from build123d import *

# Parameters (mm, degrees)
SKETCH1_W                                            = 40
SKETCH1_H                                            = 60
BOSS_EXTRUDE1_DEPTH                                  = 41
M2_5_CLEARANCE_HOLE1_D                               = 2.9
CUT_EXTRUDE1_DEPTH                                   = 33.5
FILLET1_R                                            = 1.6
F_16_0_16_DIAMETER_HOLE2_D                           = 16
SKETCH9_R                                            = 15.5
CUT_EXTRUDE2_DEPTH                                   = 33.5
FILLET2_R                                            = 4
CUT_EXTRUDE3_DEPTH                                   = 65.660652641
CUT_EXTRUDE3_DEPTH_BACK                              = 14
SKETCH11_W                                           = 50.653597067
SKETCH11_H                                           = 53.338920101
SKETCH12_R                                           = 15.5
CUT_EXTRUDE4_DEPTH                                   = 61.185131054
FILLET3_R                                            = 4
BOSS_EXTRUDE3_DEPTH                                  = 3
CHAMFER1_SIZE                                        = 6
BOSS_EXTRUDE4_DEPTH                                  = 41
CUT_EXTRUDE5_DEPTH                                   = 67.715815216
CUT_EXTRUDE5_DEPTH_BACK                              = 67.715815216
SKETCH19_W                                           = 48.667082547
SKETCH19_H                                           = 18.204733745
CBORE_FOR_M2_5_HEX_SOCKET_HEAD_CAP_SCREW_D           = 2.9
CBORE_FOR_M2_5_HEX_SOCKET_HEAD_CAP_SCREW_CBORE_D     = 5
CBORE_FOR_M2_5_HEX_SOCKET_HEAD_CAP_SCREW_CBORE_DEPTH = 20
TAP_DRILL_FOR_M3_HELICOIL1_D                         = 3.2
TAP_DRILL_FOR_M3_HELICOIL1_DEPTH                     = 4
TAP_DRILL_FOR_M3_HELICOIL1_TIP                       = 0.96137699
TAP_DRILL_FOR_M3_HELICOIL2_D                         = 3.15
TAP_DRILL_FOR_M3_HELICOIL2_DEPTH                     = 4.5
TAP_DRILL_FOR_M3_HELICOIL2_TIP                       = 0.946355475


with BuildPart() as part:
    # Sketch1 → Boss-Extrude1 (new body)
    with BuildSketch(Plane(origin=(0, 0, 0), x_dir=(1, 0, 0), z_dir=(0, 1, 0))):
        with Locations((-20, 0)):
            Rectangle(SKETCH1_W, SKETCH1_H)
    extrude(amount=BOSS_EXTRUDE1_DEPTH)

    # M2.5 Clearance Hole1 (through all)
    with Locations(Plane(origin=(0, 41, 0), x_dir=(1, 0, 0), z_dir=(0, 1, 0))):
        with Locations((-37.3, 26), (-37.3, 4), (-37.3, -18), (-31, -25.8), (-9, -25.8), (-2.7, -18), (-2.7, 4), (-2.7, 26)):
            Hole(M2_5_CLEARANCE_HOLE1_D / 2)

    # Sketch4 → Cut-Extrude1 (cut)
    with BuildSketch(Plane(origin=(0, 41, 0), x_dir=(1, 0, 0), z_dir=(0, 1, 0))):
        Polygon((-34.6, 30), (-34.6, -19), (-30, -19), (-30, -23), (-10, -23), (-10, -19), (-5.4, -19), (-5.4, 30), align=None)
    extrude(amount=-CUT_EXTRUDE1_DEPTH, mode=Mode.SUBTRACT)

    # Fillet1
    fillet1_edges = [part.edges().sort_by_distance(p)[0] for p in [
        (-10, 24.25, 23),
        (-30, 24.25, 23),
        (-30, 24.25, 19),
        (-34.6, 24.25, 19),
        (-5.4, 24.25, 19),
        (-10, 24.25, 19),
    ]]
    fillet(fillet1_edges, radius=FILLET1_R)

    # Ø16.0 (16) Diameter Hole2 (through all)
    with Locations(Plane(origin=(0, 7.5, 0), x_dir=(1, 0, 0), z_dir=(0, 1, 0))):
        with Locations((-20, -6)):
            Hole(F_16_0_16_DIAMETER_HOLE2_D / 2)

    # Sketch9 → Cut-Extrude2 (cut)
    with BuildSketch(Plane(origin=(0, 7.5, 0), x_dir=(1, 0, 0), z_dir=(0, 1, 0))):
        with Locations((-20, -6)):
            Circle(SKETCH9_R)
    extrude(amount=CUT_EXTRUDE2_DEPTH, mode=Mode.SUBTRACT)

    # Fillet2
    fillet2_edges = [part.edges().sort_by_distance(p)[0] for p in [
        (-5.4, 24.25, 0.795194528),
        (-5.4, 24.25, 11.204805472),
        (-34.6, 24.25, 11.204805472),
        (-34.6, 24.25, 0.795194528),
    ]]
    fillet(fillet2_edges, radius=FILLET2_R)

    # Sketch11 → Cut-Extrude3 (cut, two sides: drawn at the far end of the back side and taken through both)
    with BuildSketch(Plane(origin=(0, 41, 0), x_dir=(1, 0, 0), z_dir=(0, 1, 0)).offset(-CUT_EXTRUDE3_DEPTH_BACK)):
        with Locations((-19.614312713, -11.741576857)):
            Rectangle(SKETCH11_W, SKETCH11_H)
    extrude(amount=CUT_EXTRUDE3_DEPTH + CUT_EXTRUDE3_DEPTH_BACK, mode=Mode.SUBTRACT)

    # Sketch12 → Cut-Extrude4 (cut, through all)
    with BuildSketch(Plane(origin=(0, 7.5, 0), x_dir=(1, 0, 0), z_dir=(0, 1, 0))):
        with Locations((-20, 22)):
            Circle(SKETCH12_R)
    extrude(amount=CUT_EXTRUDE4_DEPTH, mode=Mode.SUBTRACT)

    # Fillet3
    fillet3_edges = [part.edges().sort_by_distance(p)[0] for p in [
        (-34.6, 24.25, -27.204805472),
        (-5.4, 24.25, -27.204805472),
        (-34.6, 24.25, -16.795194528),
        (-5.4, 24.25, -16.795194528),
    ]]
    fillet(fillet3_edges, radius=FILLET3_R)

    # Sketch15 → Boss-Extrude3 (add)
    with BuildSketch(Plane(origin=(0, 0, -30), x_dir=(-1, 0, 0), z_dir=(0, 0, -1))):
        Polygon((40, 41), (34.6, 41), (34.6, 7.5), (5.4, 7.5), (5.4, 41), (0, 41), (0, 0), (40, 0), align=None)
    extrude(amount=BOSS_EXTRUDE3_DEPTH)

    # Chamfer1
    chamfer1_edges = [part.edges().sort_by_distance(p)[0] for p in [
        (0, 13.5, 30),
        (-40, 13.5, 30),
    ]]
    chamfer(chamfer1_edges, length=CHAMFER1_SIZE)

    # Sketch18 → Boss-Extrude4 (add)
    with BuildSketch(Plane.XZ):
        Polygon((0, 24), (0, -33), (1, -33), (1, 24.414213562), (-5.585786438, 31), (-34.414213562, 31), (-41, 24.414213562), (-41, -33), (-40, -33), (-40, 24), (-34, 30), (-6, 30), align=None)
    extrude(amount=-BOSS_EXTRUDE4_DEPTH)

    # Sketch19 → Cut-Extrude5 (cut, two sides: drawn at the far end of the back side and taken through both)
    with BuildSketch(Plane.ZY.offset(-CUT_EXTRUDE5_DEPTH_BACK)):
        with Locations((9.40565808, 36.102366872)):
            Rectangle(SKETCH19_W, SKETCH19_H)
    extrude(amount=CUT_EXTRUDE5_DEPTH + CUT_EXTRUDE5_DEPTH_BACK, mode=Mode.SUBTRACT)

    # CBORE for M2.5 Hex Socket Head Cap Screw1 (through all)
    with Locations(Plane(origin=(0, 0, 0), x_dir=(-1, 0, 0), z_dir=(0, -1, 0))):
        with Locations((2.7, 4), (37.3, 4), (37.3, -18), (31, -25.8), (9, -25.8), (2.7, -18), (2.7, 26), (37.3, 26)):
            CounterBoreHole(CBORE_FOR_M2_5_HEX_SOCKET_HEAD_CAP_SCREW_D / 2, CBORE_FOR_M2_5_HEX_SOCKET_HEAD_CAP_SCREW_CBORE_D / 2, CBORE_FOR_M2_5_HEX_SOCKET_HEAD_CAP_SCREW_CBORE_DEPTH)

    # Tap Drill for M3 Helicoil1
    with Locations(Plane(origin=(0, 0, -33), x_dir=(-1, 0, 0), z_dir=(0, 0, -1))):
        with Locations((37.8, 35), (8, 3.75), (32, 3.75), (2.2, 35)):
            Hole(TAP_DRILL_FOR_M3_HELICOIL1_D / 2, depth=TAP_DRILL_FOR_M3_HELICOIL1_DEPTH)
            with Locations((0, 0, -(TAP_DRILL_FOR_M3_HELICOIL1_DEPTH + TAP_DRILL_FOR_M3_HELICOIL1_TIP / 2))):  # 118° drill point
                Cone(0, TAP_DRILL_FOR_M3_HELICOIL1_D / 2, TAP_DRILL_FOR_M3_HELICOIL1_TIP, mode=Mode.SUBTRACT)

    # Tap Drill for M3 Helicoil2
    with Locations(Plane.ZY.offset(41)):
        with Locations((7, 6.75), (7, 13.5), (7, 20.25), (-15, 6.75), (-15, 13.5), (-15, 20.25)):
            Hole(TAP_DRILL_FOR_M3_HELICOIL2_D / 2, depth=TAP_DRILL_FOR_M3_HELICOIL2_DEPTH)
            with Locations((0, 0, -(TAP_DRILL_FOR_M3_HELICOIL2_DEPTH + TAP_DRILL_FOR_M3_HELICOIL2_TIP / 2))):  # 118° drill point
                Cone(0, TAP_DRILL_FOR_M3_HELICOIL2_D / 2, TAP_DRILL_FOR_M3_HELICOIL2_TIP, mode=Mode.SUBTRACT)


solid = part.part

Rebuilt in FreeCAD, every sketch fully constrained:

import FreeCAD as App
import Part
import Sketcher
Q = App.Units.Quantity


def edges_at(feature, points):
    """Names of the edges that pass closest to the given points."""
    edges = feature.Shape.Edges
    near = lambda p: min(range(len(edges)), key=lambda i: edges[i].distToShape(Part.Vertex(*p))[0])
    return sorted({f"Edge{near(p) + 1}" for p in points})


def add_polygon(sketch, points):
    """Adds a closed chain of lines whose ends are joined by coincident constraints."""
    first, n = sketch.GeometryCount, len(points)
    for a, b in zip(points, points[1:] + points[:1]):
        sketch.addGeometry(Part.LineSegment(App.Vector(*a, 0), App.Vector(*b, 0)), False)
    for i in range(n):
        sketch.addConstraint(Sketcher.Constraint("Coincident", first + i, 2, first + (i + 1) % n, 1))

doc = App.newDocument("Part")
body = doc.addObject("PartDesign::Body", "Body")

sketch1 = body.newObject("Sketcher::SketchObject", "Sketch")
sketch1.AttachmentSupport = (doc.getObject("XZ_Plane"), [""])
sketch1.MapMode = "FlatFace"
add_polygon(sketch1, [(-40, -30), (-40, 30), (0, 30), (0, -30)])
sketch1.addConstraint(Sketcher.Constraint("Vertical", 0))
sketch1.addConstraint(Sketcher.Constraint("Horizontal", 1))
sketch1.addConstraint(Sketcher.Constraint("Vertical", 2))
sketch1.addConstraint(Sketcher.Constraint("Horizontal", 3))
sketch1.addConstraint(Sketcher.Constraint("Symmetric", 1, 2, 2, 2, -1, 1))
sketch1.addConstraint(Sketcher.Constraint("DistanceX", 1, 1, 1, 2, Q("40 mm")))
sketch1.addConstraint(Sketcher.Constraint("DistanceY", 0, 1, 0, 2, Q("60 mm")))
pad1 = body.newObject("PartDesign::Pad", "Pad")
pad1.Profile = sketch1
pad1.Length = 41
pad1.Reversed = True

sketch2 = body.newObject("Sketcher::SketchObject", "Sketch001")
sketch2.AttachmentSupport = (doc.getObject("XZ_Plane"), [""])
sketch2.MapMode = "FlatFace"
sketch2.AttachmentOffset = App.Placement(App.Vector(0, 0, -41), App.Rotation())
sketch2.addGeometry(Part.Circle(App.Vector(-37.3, -26, 0), App.Vector(0, 0, 1), 1.4), False)
sketch2.addGeometry(Part.Circle(App.Vector(-37.3, -4, 0), App.Vector(0, 0, 1), 1.4), False)
sketch2.addGeometry(Part.Circle(App.Vector(-37.3, 18, 0), App.Vector(0, 0, 1), 1.4), False)
sketch2.addGeometry(Part.Circle(App.Vector(-31, 25.8, 0), App.Vector(0, 0, 1), 1.4), False)
sketch2.addGeometry(Part.Circle(App.Vector(-9, 25.8, 0), App.Vector(0, 0, 1), 1.4), False)
sketch2.addGeometry(Part.Circle(App.Vector(-2.7, 18, 0), App.Vector(0, 0, 1), 1.4), False)
sketch2.addGeometry(Part.Circle(App.Vector(-2.7, -4, 0), App.Vector(0, 0, 1), 1.4), False)
sketch2.addGeometry(Part.Circle(App.Vector(-2.7, -26, 0), App.Vector(0, 0, 1), 1.4), False)
sketch2.addConstraint(Sketcher.Constraint("Equal", 0, 1))
sketch2.addConstraint(Sketcher.Constraint("Equal", 1, 2))
sketch2.addConstraint(Sketcher.Constraint("Equal", 2, 3))
sketch2.addConstraint(Sketcher.Constraint("Equal", 3, 4))
sketch2.addConstraint(Sketcher.Constraint("Equal", 4, 5))
sketch2.addConstraint(Sketcher.Constraint("Equal", 5, 6))
sketch2.addConstraint(Sketcher.Constraint("Equal", 6, 7))
sketch2.addConstraint(Sketcher.Constraint("Horizontal", 3, 3, 4, 3))
sketch2.addConstraint(Sketcher.Constraint("Horizontal", 2, 3, 5, 3))
sketch2.addConstraint(Sketcher.Constraint("Horizontal", 1, 3, 6, 3))
sketch2.addConstraint(Sketcher.Constraint("Horizontal", 0, 3, 7, 3))
sketch2.addConstraint(Sketcher.Constraint("Vertical", 0, 3, 1, 3))
sketch2.addConstraint(Sketcher.Constraint("Vertical", 1, 3, 2, 3))
sketch2.addConstraint(Sketcher.Constraint("Vertical", 5, 3, 6, 3))
sketch2.addConstraint(Sketcher.Constraint("Vertical", 6, 3, 7, 3))
sketch2.addConstraint(Sketcher.Constraint("Diameter", 0, Q("2.9 mm")))
sketch2.addConstraint(Sketcher.Constraint("DistanceY", 0, 3, -1, 1, Q("26 mm")))
sketch2.addConstraint(Sketcher.Constraint("DistanceY", 1, 3, -1, 1, Q("4 mm")))
sketch2.addConstraint(Sketcher.Constraint("DistanceY", -1, 1, 2, 3, Q("18 mm")))
sketch2.addConstraint(Sketcher.Constraint("DistanceX", 3, 3, -1, 1, Q("31 mm")))
sketch2.addConstraint(Sketcher.Constraint("DistanceX", 4, 3, -1, 1, Q("9 mm")))
sketch2.addConstraint(Sketcher.Constraint("DistanceX", 0, 3, -1, 1, Q("37.3 mm")))
sketch2.addConstraint(Sketcher.Constraint("DistanceY", -1, 1, 3, 3, Q("25.8 mm")))
sketch2.addConstraint(Sketcher.Constraint("DistanceX", 5, 3, -1, 1, Q("2.7 mm")))
doc.recompute()
hole = body.newObject("PartDesign::Hole", "Hole")
hole.Profile = sketch2
hole.ThreadType = "None"
hole.Diameter = 2.9
hole.DepthType = "ThroughAll"
hole.Reversed = True

sketch3 = body.newObject("Sketcher::SketchObject", "Sketch002")
sketch3.AttachmentSupport = (doc.getObject("XZ_Plane"), [""])
sketch3.MapMode = "FlatFace"
sketch3.AttachmentOffset = App.Placement(App.Vector(0, 0, -41), App.Rotation())
add_polygon(sketch3, [(-34.6, -30), (-34.6, 19), (-30, 19), (-30, 23), (-10, 23), (-10, 19), (-5.4, 19), (-5.4, -30)])
sketch3.addConstraint(Sketcher.Constraint("Vertical", 0))
sketch3.addConstraint(Sketcher.Constraint("Horizontal", 1))
sketch3.addConstraint(Sketcher.Constraint("Vertical", 2))
sketch3.addConstraint(Sketcher.Constraint("Horizontal", 3))
sketch3.addConstraint(Sketcher.Constraint("Vertical", 4))
sketch3.addConstraint(Sketcher.Constraint("Horizontal", 5))
sketch3.addConstraint(Sketcher.Constraint("Vertical", 6))
sketch3.addConstraint(Sketcher.Constraint("Horizontal", 7))
sketch3.addConstraint(Sketcher.Constraint("Horizontal", 1, 2, 4, 2))
sketch3.addConstraint(Sketcher.Constraint("Equal", 1, 5))
sketch3.addConstraint(Sketcher.Constraint("DistanceX", 3, 1, 3, 2, Q("20 mm")))
sketch3.addConstraint(Sketcher.Constraint("DistanceY", 0, 1, 0, 2, Q("49 mm")))
sketch3.addConstraint(Sketcher.Constraint("DistanceY", 2, 1, 2, 2, Q("4 mm")))
sketch3.addConstraint(Sketcher.Constraint("DistanceX", 1, 1, 1, 2, Q("4.6 mm")))
sketch3.addConstraint(Sketcher.Constraint("DistanceY", -1, 1, 0, 2, Q("19 mm")))
sketch3.addConstraint(Sketcher.Constraint("DistanceX", 1, 2, -1, 1, Q("30 mm")))
pocket1 = body.newObject("PartDesign::Pocket", "Pocket")
pocket1.Profile = sketch3
pocket1.Length = 33.5
pocket1.Reversed = True
doc.recompute()

fillet = body.newObject("PartDesign::Fillet", "Fillet")
fillet.Base = (pocket1, edges_at(pocket1, [
    (-10, 24.25, 23),
    (-30, 24.25, 23),
    (-30, 24.25, 19),
    (-34.6, 24.25, 19),
    (-5.4, 24.25, 19),
    (-10, 24.25, 19),
]))
fillet.Radius = 1.6

sketch4 = body.newObject("Sketcher::SketchObject", "Sketch003")
sketch4.AttachmentSupport = (doc.getObject("XZ_Plane"), [""])
sketch4.MapMode = "FlatFace"
sketch4.AttachmentOffset = App.Placement(App.Vector(0, 0, -7.5), App.Rotation())
sketch4.addGeometry(Part.Circle(App.Vector(-20, 6, 0), App.Vector(0, 0, 1), 8), False)
sketch4.addConstraint(Sketcher.Constraint("Diameter", 0, Q("16 mm")))
sketch4.addConstraint(Sketcher.Constraint("DistanceX", 0, 3, -1, 1, Q("20 mm")))
sketch4.addConstraint(Sketcher.Constraint("DistanceY", -1, 1, 0, 3, Q("6 mm")))
doc.recompute()
hole2 = body.newObject("PartDesign::Hole", "Hole001")
hole2.Profile = sketch4
hole2.ThreadType = "None"
hole2.Diameter = 16
hole2.DepthType = "ThroughAll"
hole2.Reversed = True

sketch5 = body.newObject("Sketcher::SketchObject", "Sketch004")
sketch5.AttachmentSupport = (doc.getObject("XZ_Plane"), [""])
sketch5.MapMode = "FlatFace"
sketch5.AttachmentOffset = App.Placement(App.Vector(0, 0, -7.5), App.Rotation())
sketch5.addGeometry(Part.Circle(App.Vector(-20, 6, 0), App.Vector(0, 0, 1), 16), False)
sketch5.addConstraint(Sketcher.Constraint("Diameter", 0, Q("31 mm")))
sketch5.addConstraint(Sketcher.Constraint("DistanceX", 0, 3, -1, 1, Q("20 mm")))
sketch5.addConstraint(Sketcher.Constraint("DistanceY", -1, 1, 0, 3, Q("6 mm")))
pocket2 = body.newObject("PartDesign::Pocket", "Pocket001")
pocket2.Profile = sketch5
pocket2.Length = 33.5
doc.recompute()

fillet2 = body.newObject("PartDesign::Fillet", "Fillet001")
fillet2.Base = (pocket2, edges_at(pocket2, [
    (-5.4, 24.25, 0.795),
    (-5.4, 24.25, 11.205),
    (-34.6, 24.25, 11.205),
    (-34.6, 24.25, 0.795),
]))
fillet2.Radius = 4

sketch6 = body.newObject("Sketcher::SketchObject", "Sketch005")
sketch6.AttachmentSupport = (doc.getObject("XZ_Plane"), [""])
sketch6.MapMode = "FlatFace"
sketch6.AttachmentOffset = App.Placement(App.Vector(0, 0, -41), App.Rotation())
add_polygon(sketch6, [(-45, -15), (-45, 38), (6, 38), (6, -15)])
sketch6.addConstraint(Sketcher.Constraint("Vertical", 0))
sketch6.addConstraint(Sketcher.Constraint("Horizontal", 1))
sketch6.addConstraint(Sketcher.Constraint("Vertical", 2))
sketch6.addConstraint(Sketcher.Constraint("Horizontal", 3))
sketch6.addConstraint(Sketcher.Constraint("DistanceY", 0, 1, 0, 2, Q("53.33892 mm")))
sketch6.addConstraint(Sketcher.Constraint("DistanceX", 1, 1, 1, 2, Q("50.653597 mm")))
sketch6.addConstraint(Sketcher.Constraint("DistanceX", 0, 2, -1, 1, Q("44.941111 mm")))
sketch6.addConstraint(Sketcher.Constraint("DistanceY", -1, 1, 0, 2, Q("38.411037 mm")))
pocket3 = body.newObject("PartDesign::Pocket", "Pocket002")
pocket3.Profile = sketch6
pocket3.Type = "TwoLengths"
pocket3.Length = 65.660653
pocket3.Length2 = 14

sketch7 = body.newObject("Sketcher::SketchObject", "Sketch006")
sketch7.AttachmentSupport = (doc.getObject("XZ_Plane"), [""])
sketch7.MapMode = "FlatFace"
sketch7.AttachmentOffset = App.Placement(App.Vector(0, 0, -7.5), App.Rotation())
sketch7.addGeometry(Part.Circle(App.Vector(-20, -22, 0), App.Vector(0, 0, 1), 16), False)
sketch7.addConstraint(Sketcher.Constraint("Diameter", 0, Q("31 mm")))
sketch7.addConstraint(Sketcher.Constraint("DistanceX", 0, 3, -1, 1, Q("20 mm")))
sketch7.addConstraint(Sketcher.Constraint("DistanceY", 0, 3, -1, 1, Q("22 mm")))
pocket4 = body.newObject("PartDesign::Pocket", "Pocket003")
pocket4.Profile = sketch7
pocket4.Type = "ThroughAll"
doc.recompute()

fillet3 = body.newObject("PartDesign::Fillet", "Fillet002")
fillet3.Base = (pocket4, edges_at(pocket4, [
    (-34.6, 24.25, -27.205),
    (-5.4, 24.25, -27.205),
    (-34.6, 24.25, -16.795),
    (-5.4, 24.25, -16.795),
]))
fillet3.Radius = 4

sketch8 = body.newObject("Sketcher::SketchObject", "Sketch007")
sketch8.AttachmentSupport = (doc.getObject("XY_Plane"), [""])
sketch8.MapMode = "FlatFace"
sketch8.AttachmentOffset = App.Placement(App.Vector(0, 0, -30), App.Rotation())
add_polygon(sketch8, [(-40, 41), (-35, 41), (-35, 8), (-5, 8), (-5, 41), (0, 41), (0, 0), (-40, 0)])
sketch8.addConstraint(Sketcher.Constraint("Horizontal", 0))
sketch8.addConstraint(Sketcher.Constraint("Vertical", 1))
sketch8.addConstraint(Sketcher.Constraint("Horizontal", 2))
sketch8.addConstraint(Sketcher.Constraint("Vertical", 3))
sketch8.addConstraint(Sketcher.Constraint("Horizontal", 4))
sketch8.addConstraint(Sketcher.Constraint("Vertical", 5))
sketch8.addConstraint(Sketcher.Constraint("Horizontal", 6))
sketch8.addConstraint(Sketcher.Constraint("Vertical", 7))
sketch8.addConstraint(Sketcher.Constraint("Coincident", 5, 2, -1, 1))
sketch8.addConstraint(Sketcher.Constraint("Horizontal", 0, 2, 3, 2))
sketch8.addConstraint(Sketcher.Constraint("Equal", 0, 4))
sketch8.addConstraint(Sketcher.Constraint("DistanceX", 6, 2, 6, 1, Q("40 mm")))
sketch8.addConstraint(Sketcher.Constraint("DistanceY", 5, 2, 5, 1, Q("41 mm")))
sketch8.addConstraint(Sketcher.Constraint("DistanceX", 0, 1, 0, 2, Q("5.4 mm")))
sketch8.addConstraint(Sketcher.Constraint("DistanceY", 1, 2, 1, 1, Q("33.5 mm")))
pad2 = body.newObject("PartDesign::Pad", "Pad001")
pad2.Profile = sketch8
pad2.Length = 3
pad2.Reversed = True
doc.recompute()

chamfer = body.newObject("PartDesign::Chamfer", "Chamfer")
chamfer.Base = (pad2, edges_at(pad2, [(0, 13.5, 30), (-40, 13.5, 30)]))
chamfer.Size = 6

sketch9 = body.newObject("Sketcher::SketchObject", "Sketch008")
sketch9.AttachmentSupport = (doc.getObject("XZ_Plane"), [""])
sketch9.MapMode = "FlatFace"
add_polygon(sketch9, [(0, 24), (0, -33), (1, -33), (1, 24.4), (-5.6, 31), (-34.4, 31), (-41, 24.4), (-41, -33), (-40, -33), (-40, 24), (-34, 30), (-6, 30)])
sketch9.addConstraint(Sketcher.Constraint("Vertical", 0))
sketch9.addConstraint(Sketcher.Constraint("Horizontal", 1))
sketch9.addConstraint(Sketcher.Constraint("Vertical", 2))
sketch9.addConstraint(Sketcher.Constraint("Horizontal", 4))
sketch9.addConstraint(Sketcher.Constraint("Vertical", 6))
sketch9.addConstraint(Sketcher.Constraint("Horizontal", 7))
sketch9.addConstraint(Sketcher.Constraint("Vertical", 8))
sketch9.addConstraint(Sketcher.Constraint("Horizontal", 10))
sketch9.addConstraint(Sketcher.Constraint("PointOnObject", 0, 2, -2))
sketch9.addConstraint(Sketcher.Constraint("Perpendicular", 3, 5))
sketch9.addConstraint(Sketcher.Constraint("Parallel", 5, 9))
sketch9.addConstraint(Sketcher.Constraint("Perpendicular", 9, 11))
sketch9.addConstraint(Sketcher.Constraint("Horizontal", 2, 2, 5, 2))
sketch9.addConstraint(Sketcher.Constraint("Horizontal", 1, 2, 6, 2))
sketch9.addConstraint(Sketcher.Constraint("Horizontal", 8, 2, 11, 2))
sketch9.addConstraint(Sketcher.Constraint("Equal", 1, 7))
sketch9.addConstraint(Sketcher.Constraint("Equal", 3, 5))
sketch9.addConstraint(Sketcher.Constraint("DistanceX", 1, 1, 1, 2, Q("1 mm")))
sketch9.addConstraint(Sketcher.Constraint("DistanceX", 10, 1, 10, 2, Q("28 mm")))
sketch9.addConstraint(Sketcher.Constraint("DistanceY", 0, 2, 0, 1, Q("57 mm")))
sketch9.addConstraint(Sketcher.Constraint("DistanceY", 0, 2, -1, 1, Q("33 mm")))
sketch9.addConstraint(Sketcher.Constraint("DistanceY", -1, 1, 3, 2, Q("31 mm")))
sketch9.addConstraint(Sketcher.Constraint("DistanceX", 5, 2, -1, 1, Q("41 mm")))
sketch9.addConstraint(Sketcher.Constraint("Distance", 3, Q("9.313708 mm")))
pad3 = body.newObject("PartDesign::Pad", "Pad002")
pad3.Profile = sketch9
pad3.Length = 41
pad3.Reversed = True

sketch10 = body.newObject("Sketcher::SketchObject", "Sketch009")
sketch10.AttachmentSupport = (doc.getObject("YZ_Plane"), [""])
sketch10.MapMode = "FlatFace"
add_polygon(sketch10, [(45, -15), (27, -15), (27, 34), (45, 34)])
sketch10.addConstraint(Sketcher.Constraint("Horizontal", 0))
sketch10.addConstraint(Sketcher.Constraint("Vertical", 1))
sketch10.addConstraint(Sketcher.Constraint("Horizontal", 2))
sketch10.addConstraint(Sketcher.Constraint("Vertical", 3))
sketch10.addConstraint(Sketcher.Constraint("DistanceX", -1, 1, 0, 2, Q("27 mm")))
sketch10.addConstraint(Sketcher.Constraint("DistanceY", -1, 1, 1, 2, Q("33.739199 mm")))
sketch10.addConstraint(Sketcher.Constraint("DistanceX", 0, 2, 0, 1, Q("18.204734 mm")))
sketch10.addConstraint(Sketcher.Constraint("DistanceY", 1, 1, 1, 2, Q("48.667083 mm")))
pocket5 = body.newObject("PartDesign::Pocket", "Pocket004")
pocket5.Profile = sketch10
pocket5.Type = "ThroughAll"
pocket5.Midplane = True

sketch11 = body.newObject("Sketcher::SketchObject", "Sketch010")
sketch11.AttachmentSupport = (doc.getObject("XZ_Plane"), [""])
sketch11.MapMode = "FlatFace"
sketch11.addGeometry(Part.Circle(App.Vector(-2.7, -4, 0), App.Vector(0, 0, 1), 1.4), False)
sketch11.addGeometry(Part.Circle(App.Vector(-37.3, -4, 0), App.Vector(0, 0, 1), 1.4), False)
sketch11.addGeometry(Part.Circle(App.Vector(-37.3, 18, 0), App.Vector(0, 0, 1), 1.4), False)
sketch11.addGeometry(Part.Circle(App.Vector(-31, 25.8, 0), App.Vector(0, 0, 1), 1.4), False)
sketch11.addGeometry(Part.Circle(App.Vector(-9, 25.8, 0), App.Vector(0, 0, 1), 1.4), False)
sketch11.addGeometry(Part.Circle(App.Vector(-2.7, 18, 0), App.Vector(0, 0, 1), 1.4), False)
sketch11.addGeometry(Part.Circle(App.Vector(-2.7, -26, 0), App.Vector(0, 0, 1), 1.4), False)
sketch11.addGeometry(Part.Circle(App.Vector(-37.3, -26, 0), App.Vector(0, 0, 1), 1.4), False)
sketch11.addConstraint(Sketcher.Constraint("Equal", 0, 1))
sketch11.addConstraint(Sketcher.Constraint("Equal", 1, 2))
sketch11.addConstraint(Sketcher.Constraint("Equal", 2, 3))
sketch11.addConstraint(Sketcher.Constraint("Equal", 3, 4))
sketch11.addConstraint(Sketcher.Constraint("Equal", 4, 5))
sketch11.addConstraint(Sketcher.Constraint("Equal", 5, 6))
sketch11.addConstraint(Sketcher.Constraint("Equal", 6, 7))
sketch11.addConstraint(Sketcher.Constraint("Horizontal", 0, 3, 1, 3))
sketch11.addConstraint(Sketcher.Constraint("Horizontal", 3, 3, 4, 3))
sketch11.addConstraint(Sketcher.Constraint("Horizontal", 2, 3, 5, 3))
sketch11.addConstraint(Sketcher.Constraint("Horizontal", 6, 3, 7, 3))
sketch11.addConstraint(Sketcher.Constraint("Vertical", 1, 3, 2, 3))
sketch11.addConstraint(Sketcher.Constraint("Vertical", 0, 3, 5, 3))
sketch11.addConstraint(Sketcher.Constraint("Vertical", 5, 3, 6, 3))
sketch11.addConstraint(Sketcher.Constraint("Vertical", 2, 3, 7, 3))
sketch11.addConstraint(Sketcher.Constraint("Diameter", 0, Q("2.9 mm")))
sketch11.addConstraint(Sketcher.Constraint("DistanceY", 0, 3, -1, 1, Q("4 mm")))
sketch11.addConstraint(Sketcher.Constraint("DistanceY", -1, 1, 2, 3, Q("18 mm")))
sketch11.addConstraint(Sketcher.Constraint("DistanceX", 3, 3, -1, 1, Q("31 mm")))
sketch11.addConstraint(Sketcher.Constraint("DistanceX", 4, 3, -1, 1, Q("9 mm")))
sketch11.addConstraint(Sketcher.Constraint("DistanceY", 6, 3, -1, 1, Q("26 mm")))
sketch11.addConstraint(Sketcher.Constraint("DistanceX", 0, 3, -1, 1, Q("2.7 mm")))
sketch11.addConstraint(Sketcher.Constraint("DistanceX", 1, 3, -1, 1, Q("37.3 mm")))
sketch11.addConstraint(Sketcher.Constraint("DistanceY", -1, 1, 3, 3, Q("25.8 mm")))
doc.recompute()
hole3 = body.newObject("PartDesign::Hole", "Hole002")
hole3.Profile = sketch11
hole3.ThreadType = "None"
hole3.Diameter = 2.9
hole3.DepthType = "ThroughAll"
hole3.HoleCutType = "Counterbore"
hole3.HoleCutDiameter = 5
hole3.HoleCutDepth = 20

sketch12 = body.newObject("Sketcher::SketchObject", "Sketch011")
sketch12.AttachmentSupport = (doc.getObject("XY_Plane"), [""])
sketch12.MapMode = "FlatFace"
sketch12.AttachmentOffset = App.Placement(App.Vector(0, 0, -33), App.Rotation())
sketch12.addGeometry(Part.Circle(App.Vector(-37.8, 35, 0), App.Vector(0, 0, 1), 1.6), False)
sketch12.addGeometry(Part.Circle(App.Vector(-8, 3.8, 0), App.Vector(0, 0, 1), 1.6), False)
sketch12.addGeometry(Part.Circle(App.Vector(-32, 3.8, 0), App.Vector(0, 0, 1), 1.6), False)
sketch12.addGeometry(Part.Circle(App.Vector(-2.2, 35, 0), App.Vector(0, 0, 1), 1.6), False)
sketch12.addConstraint(Sketcher.Constraint("Equal", 0, 1))
sketch12.addConstraint(Sketcher.Constraint("Equal", 1, 2))
sketch12.addConstraint(Sketcher.Constraint("Equal", 2, 3))
sketch12.addConstraint(Sketcher.Constraint("Horizontal", 1, 3, 2, 3))
sketch12.addConstraint(Sketcher.Constraint("Horizontal", 0, 3, 3, 3))
sketch12.addConstraint(Sketcher.Constraint("Diameter", 0, Q("3.2 mm")))
sketch12.addConstraint(Sketcher.Constraint("DistanceY", -1, 1, 0, 3, Q("35 mm")))
sketch12.addConstraint(Sketcher.Constraint("DistanceX", 1, 3, -1, 1, Q("8 mm")))
sketch12.addConstraint(Sketcher.Constraint("DistanceX", 2, 3, -1, 1, Q("32 mm")))
sketch12.addConstraint(Sketcher.Constraint("DistanceX", 0, 3, -1, 1, Q("37.8 mm")))
sketch12.addConstraint(Sketcher.Constraint("DistanceX", 3, 3, -1, 1, Q("2.2 mm")))
sketch12.addConstraint(Sketcher.Constraint("DistanceY", -1, 1, 1, 3, Q("3.75 mm")))
doc.recompute()
hole4 = body.newObject("PartDesign::Hole", "Hole003")
hole4.Profile = sketch12
hole4.ThreadType = "None"
hole4.Diameter = 3.2
hole4.DepthType = "Dimension"
hole4.Depth = 4
hole4.DrillPoint = "Angled"
hole4.DrillPointAngle = 118
hole4.Reversed = True

sketch13 = body.newObject("Sketcher::SketchObject", "Sketch012")
sketch13.AttachmentSupport = (doc.getObject("YZ_Plane"), [""])
sketch13.MapMode = "FlatFace"
sketch13.AttachmentOffset = App.Placement(App.Vector(0, 0, -41), App.Rotation())
sketch13.addGeometry(Part.Circle(App.Vector(6.8, 7, 0), App.Vector(0, 0, 1), 1.6), False)
sketch13.addGeometry(Part.Circle(App.Vector(13.5, 7, 0), App.Vector(0, 0, 1), 1.6), False)
sketch13.addGeometry(Part.Circle(App.Vector(20.2, 7, 0), App.Vector(0, 0, 1), 1.6), False)
sketch13.addGeometry(Part.Circle(App.Vector(6.8, -15, 0), App.Vector(0, 0, 1), 1.6), False)
sketch13.addGeometry(Part.Circle(App.Vector(13.5, -15, 0), App.Vector(0, 0, 1), 1.6), False)
sketch13.addGeometry(Part.Circle(App.Vector(20.2, -15, 0), App.Vector(0, 0, 1), 1.6), False)
sketch13.addConstraint(Sketcher.Constraint("Equal", 0, 1))
sketch13.addConstraint(Sketcher.Constraint("Equal", 1, 2))
sketch13.addConstraint(Sketcher.Constraint("Equal", 2, 3))
sketch13.addConstraint(Sketcher.Constraint("Equal", 3, 4))
sketch13.addConstraint(Sketcher.Constraint("Equal", 4, 5))
sketch13.addConstraint(Sketcher.Constraint("Horizontal", 0, 3, 1, 3))
sketch13.addConstraint(Sketcher.Constraint("Horizontal", 1, 3, 2, 3))
sketch13.addConstraint(Sketcher.Constraint("Horizontal", 3, 3, 4, 3))
sketch13.addConstraint(Sketcher.Constraint("Horizontal", 4, 3, 5, 3))
sketch13.addConstraint(Sketcher.Constraint("Vertical", 0, 3, 3, 3))
sketch13.addConstraint(Sketcher.Constraint("Vertical", 1, 3, 4, 3))
sketch13.addConstraint(Sketcher.Constraint("Vertical", 2, 3, 5, 3))
sketch13.addConstraint(Sketcher.Constraint("Diameter", 0, Q("3.15 mm")))
sketch13.addConstraint(Sketcher.Constraint("DistanceY", -1, 1, 0, 3, Q("7 mm")))
sketch13.addConstraint(Sketcher.Constraint("DistanceY", 3, 3, -1, 1, Q("15 mm")))
sketch13.addConstraint(Sketcher.Constraint("DistanceX", -1, 1, 1, 3, Q("13.5 mm")))
sketch13.addConstraint(Sketcher.Constraint("DistanceX", 0, 3, 2, 3, Q("13.5 mm")))
sketch13.addConstraint(Sketcher.Constraint("DistanceX", -1, 1, 0, 3, Q("6.75 mm")))
doc.recompute()
hole5 = body.newObject("PartDesign::Hole", "Hole004")
hole5.Profile = sketch13
hole5.ThreadType = "None"
hole5.Diameter = 3.15
hole5.DepthType = "Dimension"
hole5.Depth = 4.5
hole5.DrillPoint = "Angled"
hole5.DrillPointAngle = 118
hole5.Reversed = True

doc.recompute()
